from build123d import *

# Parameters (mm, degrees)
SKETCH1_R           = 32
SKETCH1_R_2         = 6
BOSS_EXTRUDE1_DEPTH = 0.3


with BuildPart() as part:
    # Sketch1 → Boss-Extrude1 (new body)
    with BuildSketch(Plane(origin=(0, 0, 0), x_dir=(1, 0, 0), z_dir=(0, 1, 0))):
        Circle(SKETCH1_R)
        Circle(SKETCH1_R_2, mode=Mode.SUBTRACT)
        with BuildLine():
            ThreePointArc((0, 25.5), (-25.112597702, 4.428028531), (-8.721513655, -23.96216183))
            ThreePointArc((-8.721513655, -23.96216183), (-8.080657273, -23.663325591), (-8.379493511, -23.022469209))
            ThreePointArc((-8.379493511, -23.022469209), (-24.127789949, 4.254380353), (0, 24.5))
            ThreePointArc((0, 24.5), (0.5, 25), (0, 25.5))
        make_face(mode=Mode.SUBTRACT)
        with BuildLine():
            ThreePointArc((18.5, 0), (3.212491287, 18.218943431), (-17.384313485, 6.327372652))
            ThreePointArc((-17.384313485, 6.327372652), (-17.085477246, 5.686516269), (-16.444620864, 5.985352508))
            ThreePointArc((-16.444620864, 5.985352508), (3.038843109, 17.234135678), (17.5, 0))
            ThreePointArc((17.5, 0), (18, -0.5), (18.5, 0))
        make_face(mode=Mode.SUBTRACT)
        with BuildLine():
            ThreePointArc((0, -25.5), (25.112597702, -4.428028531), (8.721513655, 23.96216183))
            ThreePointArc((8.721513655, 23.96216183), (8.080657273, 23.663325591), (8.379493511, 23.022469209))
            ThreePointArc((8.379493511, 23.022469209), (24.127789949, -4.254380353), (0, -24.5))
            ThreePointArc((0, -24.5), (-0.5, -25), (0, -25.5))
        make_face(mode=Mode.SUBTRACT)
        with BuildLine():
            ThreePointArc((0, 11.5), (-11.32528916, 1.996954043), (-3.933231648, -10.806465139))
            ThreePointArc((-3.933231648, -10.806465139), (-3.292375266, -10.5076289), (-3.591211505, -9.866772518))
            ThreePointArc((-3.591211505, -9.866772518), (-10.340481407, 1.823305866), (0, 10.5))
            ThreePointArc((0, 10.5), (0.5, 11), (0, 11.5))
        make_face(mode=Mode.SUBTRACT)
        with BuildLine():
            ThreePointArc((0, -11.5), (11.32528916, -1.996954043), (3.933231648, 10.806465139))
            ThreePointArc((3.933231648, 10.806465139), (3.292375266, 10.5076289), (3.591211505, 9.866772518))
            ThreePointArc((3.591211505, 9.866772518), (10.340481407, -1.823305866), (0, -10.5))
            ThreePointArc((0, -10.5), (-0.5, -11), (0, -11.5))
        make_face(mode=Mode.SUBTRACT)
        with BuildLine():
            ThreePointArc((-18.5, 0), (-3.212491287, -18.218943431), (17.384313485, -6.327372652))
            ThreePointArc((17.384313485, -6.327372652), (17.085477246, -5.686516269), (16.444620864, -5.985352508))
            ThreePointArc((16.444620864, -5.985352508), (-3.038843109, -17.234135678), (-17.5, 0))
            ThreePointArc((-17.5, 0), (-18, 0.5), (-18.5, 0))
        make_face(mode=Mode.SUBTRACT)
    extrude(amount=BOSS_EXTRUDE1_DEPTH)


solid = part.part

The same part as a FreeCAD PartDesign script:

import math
import FreeCAD as App
import Part
import Sketcher
from FreeCAD import Vector
Q = App.Units.Quantity

doc = App.newDocument("Part")
body = doc.addObject("PartDesign::Body", "Body")

# Sketch on XZ plane
sketch1 = body.newObject("Sketcher::SketchObject", "Sketch")
sketch1.AttachmentSupport = (doc.getObject("XZ_Plane"), [""])
sketch1.MapMode = "FlatFace"
sketch1.addGeometry([
    Part.Circle(Vector(0, 0, 0), Vector(0, 0, 1), 32),  # 0
    Part.ArcOfCircle(Part.Circle(Vector(0, 0, 0), Vector(0, 0, 1), 18.5), math.radians(20), math.radians(180)),  # 1
    Part.ArcOfCircle(Part.Circle(Vector(-18, 0, 0), Vector(0, 0, 1), 0.5), math.radians(180), math.radians(360)),  # 2
    Part.ArcOfCircle(Part.Circle(Vector(0, 0, 0), Vector(0, 0, 1), 17.5), math.radians(20), math.radians(180)),  # 3
    Part.ArcOfCircle(Part.Circle(Vector(16.9, 6.2, 0), Vector(0, 0, 1), 0.5), math.radians(-160), math.radians(20)),  # 4
    Part.ArcOfCircle(Part.Circle(Vector(0, 0, 0), Vector(0, 0, 1), 11.5), math.radians(-70), math.radians(90)),  # 5
    Part.ArcOfCircle(Part.Circle(Vector(0, 11, 0), Vector(0, 0, 1), 0.5), math.radians(90), math.radians(270)),  # 6
    Part.ArcOfCircle(Part.Circle(Vector(0, 0, 0), Vector(0, 0, 1), 10.5), math.radians(-70), math.radians(90)),  # 7
    Part.ArcOfCircle(Part.Circle(Vector(3.8, -10.3, 0), Vector(0, 0, 1), 0.5), math.radians(110), math.radians(290)),  # 8
    Part.ArcOfCircle(Part.Circle(Vector(0, 0, 0), Vector(0, 0, 1), 25.5), math.radians(-70), math.radians(90)),  # 9
    Part.ArcOfCircle(Part.Circle(Vector(0, 25, 0), Vector(0, 0, 1), 0.5), math.radians(90), math.radians(270)),  # 10
    Part.ArcOfCircle(Part.Circle(Vector(0, 0, 0), Vector(0, 0, 1), 24.5), math.radians(-70), math.radians(90)),  # 11
    Part.ArcOfCircle(Part.Circle(Vector(8.6, -23.5, 0), Vector(0, 0, 1), 0.5), math.radians(110), math.radians(290)),  # 12
    Part.ArcOfCircle(Part.Circle(Vector(0, 0, 0), Vector(0, 0, 1), 25.5), math.radians(110), math.radians(270)),  # 13
    Part.ArcOfCircle(Part.Circle(Vector(0, -25, 0), Vector(0, 0, 1), 0.5), math.radians(-90), math.radians(90)),  # 14
    Part.ArcOfCircle(Part.Circle(Vector(0, 0, 0), Vector(0, 0, 1), 24.5), math.radians(110), math.radians(270)),  # 15
    Part.ArcOfCircle(Part.Circle(Vector(-8.6, 23.5, 0), Vector(0, 0, 1), 0.5), math.radians(-70), math.radians(110)),  # 16
    Part.ArcOfCircle(Part.Circle(Vector(0, 0, 0), Vector(0, 0, 1), 11.5), math.radians(110), math.radians(270)),  # 17
    Part.ArcOfCircle(Part.Circle(Vector(0, -11, 0), Vector(0, 0, 1), 0.5), math.radians(-90), math.radians(90)),  # 18
    Part.ArcOfCircle(Part.Circle(Vector(0, 0, 0), Vector(0, 0, 1), 10.5), math.radians(110), math.radians(270)),  # 19
    Part.ArcOfCircle(Part.Circle(Vector(-3.8, 10.3, 0), Vector(0, 0, 1), 0.5), math.radians(-70), math.radians(110)),  # 20
    Part.Circle(Vector(0, 0, 0), Vector(0, 0, 1), 6),  # 21
    Part.ArcOfCircle(Part.Circle(Vector(0, 0, 0), Vector(0, 0, 1), 18.5), math.radians(-160), math.radians(0)),  # 22
    Part.ArcOfCircle(Part.Circle(Vector(18, 0, 0), Vector(0, 0, 1), 0.5), math.radians(0), math.radians(180)),  # 23
    Part.ArcOfCircle(Part.Circle(Vector(0, 0, 0), Vector(0, 0, 1), 17.5), math.radians(-160), math.radians(0)),  # 24
    Part.ArcOfCircle(Part.Circle(Vector(-16.9, -6.2, 0), Vector(0, 0, 1), 0.5), math.radians(20), math.radians(200)),  # 25
], False)
sketch1.addConstraint([
    Sketcher.Constraint("Tangent", 1, 2, 2, 1),
    Sketcher.Constraint("Tangent", 2, 2, 3, 2),
    Sketcher.Constraint("Tangent", 3, 1, 4, 1),
    Sketcher.Constraint("Tangent", 4, 2, 1, 1),
    Sketcher.Constraint("Tangent", 5, 2, 6, 1),
    Sketcher.Constraint("Tangent", 6, 2, 7, 2),
    Sketcher.Constraint("Tangent", 7, 1, 8, 1),
    Sketcher.Constraint("Tangent", 8, 2, 5, 1),
    Sketcher.Constraint("Tangent", 9, 2, 10, 1),
    Sketcher.Constraint("Tangent", 10, 2, 11, 2),
    Sketcher.Constraint("Tangent", 11, 1, 12, 1),
    Sketcher.Constraint("Tangent", 12, 2, 9, 1),
    Sketcher.Constraint("Tangent", 13, 2, 14, 1),
    Sketcher.Constraint("Tangent", 14, 2, 15, 2),
    Sketcher.Constraint("Tangent", 15, 1, 16, 1),
    Sketcher.Constraint("Tangent", 16, 2, 13, 1),
    Sketcher.Constraint("Tangent", 17, 2, 18, 1),
    Sketcher.Constraint("Tangent", 18, 2, 19, 2),
    Sketcher.Constraint("Tangent", 19, 1, 20, 1),
    Sketcher.Constraint("Tangent", 20, 2, 17, 1),
    Sketcher.Constraint("Tangent", 22, 2, 23, 1),
    Sketcher.Constraint("Tangent", 23, 2, 24, 2),
    Sketcher.Constraint("Tangent", 24, 1, 25, 1),
    Sketcher.Constraint("Tangent", 25, 2, 22, 1),
    Sketcher.Constraint("Coincident", 0, 3, -1, 1),
    Sketcher.Constraint("Coincident", 1, 3, -1, 1),
    Sketcher.Constraint("Coincident", 3, 3, -1, 1),
    Sketcher.Constraint("Coincident", 5, 3, -1, 1),
    Sketcher.Constraint("Coincident", 7, 3, -1, 1),
    Sketcher.Constraint("Coincident", 9, 3, -1, 1),
    Sketcher.Constraint("Coincident", 11, 3, -1, 1),
    Sketcher.Constraint("Coincident", 13, 3, -1, 1),
    Sketcher.Constraint("Coincident", 15, 3, -1, 1),
    Sketcher.Constraint("Coincident", 17, 3, -1, 1),
    Sketcher.Constraint("Coincident", 19, 3, -1, 1),
    Sketcher.Constraint("Coincident", 21, 3, -1, 1),
    Sketcher.Constraint("Coincident", 22, 3, -1, 1),
    Sketcher.Constraint("Coincident", 24, 3, -1, 1),
    Sketcher.Constraint("Equal", 4, 6),
    Sketcher.Constraint("Equal", 8, 10),
    Sketcher.Constraint("Equal", 9, 13),
    Sketcher.Constraint("Equal", 12, 14),
    Sketcher.Constraint("Equal", 5, 17),
    Sketcher.Constraint("Equal", 16, 18),
    Sketcher.Constraint("Equal", 1, 22),
    Sketcher.Constraint("Equal", 20, 23),
    Sketcher.Constraint("PointOnObject", 2, 3, -1),
    Sketcher.Constraint("PointOnObject", 6, 3, -2),
    Sketcher.Constraint("PointOnObject", 10, 3, -2),
    Sketcher.Constraint("PointOnObject", 14, 3, -2),
    Sketcher.Constraint("PointOnObject", 18, 3, -2),
    Sketcher.Constraint("PointOnObject", 23, 3, -1),
    Sketcher.Constraint("Diameter", 0, Q("64 mm")),
    Sketcher.Constraint("Diameter", 21, Q("12 mm")),
    Sketcher.Constraint("Radius", 1, Q("18.5 mm")),
    Sketcher.Constraint("Radius", 2, Q("0.5 mm")),
    Sketcher.Constraint("Radius", 5, Q("11.5 mm")),
    Sketcher.Constraint("Radius", 9, Q("25.5 mm")),
    Sketcher.Constraint("DistanceX", -1, 1, 8, 3, Q("3.762222 mm")),
    Sketcher.Constraint("DistanceX", 20, 3, -1, 1, Q("3.762222 mm")),
    Sketcher.Constraint("DistanceX", -1, 1, 3, 1, Q("16.444621 mm")),
    Sketcher.Constraint("DistanceY", 11, 1, -1, 1, Q("23.022469 mm")),
    Sketcher.Constraint("DistanceY", -1, 1, 15, 1, Q("23.022469 mm")),
    Sketcher.Constraint("DistanceX", 24, 1, -1, 1, Q("16.444621 mm")),
])
pad1 = body.newObject("PartDesign::Pad", "Pad")
pad1.Profile = sketch1
pad1.Length = 0.3
pad1.Reversed = True

doc.recompute()
